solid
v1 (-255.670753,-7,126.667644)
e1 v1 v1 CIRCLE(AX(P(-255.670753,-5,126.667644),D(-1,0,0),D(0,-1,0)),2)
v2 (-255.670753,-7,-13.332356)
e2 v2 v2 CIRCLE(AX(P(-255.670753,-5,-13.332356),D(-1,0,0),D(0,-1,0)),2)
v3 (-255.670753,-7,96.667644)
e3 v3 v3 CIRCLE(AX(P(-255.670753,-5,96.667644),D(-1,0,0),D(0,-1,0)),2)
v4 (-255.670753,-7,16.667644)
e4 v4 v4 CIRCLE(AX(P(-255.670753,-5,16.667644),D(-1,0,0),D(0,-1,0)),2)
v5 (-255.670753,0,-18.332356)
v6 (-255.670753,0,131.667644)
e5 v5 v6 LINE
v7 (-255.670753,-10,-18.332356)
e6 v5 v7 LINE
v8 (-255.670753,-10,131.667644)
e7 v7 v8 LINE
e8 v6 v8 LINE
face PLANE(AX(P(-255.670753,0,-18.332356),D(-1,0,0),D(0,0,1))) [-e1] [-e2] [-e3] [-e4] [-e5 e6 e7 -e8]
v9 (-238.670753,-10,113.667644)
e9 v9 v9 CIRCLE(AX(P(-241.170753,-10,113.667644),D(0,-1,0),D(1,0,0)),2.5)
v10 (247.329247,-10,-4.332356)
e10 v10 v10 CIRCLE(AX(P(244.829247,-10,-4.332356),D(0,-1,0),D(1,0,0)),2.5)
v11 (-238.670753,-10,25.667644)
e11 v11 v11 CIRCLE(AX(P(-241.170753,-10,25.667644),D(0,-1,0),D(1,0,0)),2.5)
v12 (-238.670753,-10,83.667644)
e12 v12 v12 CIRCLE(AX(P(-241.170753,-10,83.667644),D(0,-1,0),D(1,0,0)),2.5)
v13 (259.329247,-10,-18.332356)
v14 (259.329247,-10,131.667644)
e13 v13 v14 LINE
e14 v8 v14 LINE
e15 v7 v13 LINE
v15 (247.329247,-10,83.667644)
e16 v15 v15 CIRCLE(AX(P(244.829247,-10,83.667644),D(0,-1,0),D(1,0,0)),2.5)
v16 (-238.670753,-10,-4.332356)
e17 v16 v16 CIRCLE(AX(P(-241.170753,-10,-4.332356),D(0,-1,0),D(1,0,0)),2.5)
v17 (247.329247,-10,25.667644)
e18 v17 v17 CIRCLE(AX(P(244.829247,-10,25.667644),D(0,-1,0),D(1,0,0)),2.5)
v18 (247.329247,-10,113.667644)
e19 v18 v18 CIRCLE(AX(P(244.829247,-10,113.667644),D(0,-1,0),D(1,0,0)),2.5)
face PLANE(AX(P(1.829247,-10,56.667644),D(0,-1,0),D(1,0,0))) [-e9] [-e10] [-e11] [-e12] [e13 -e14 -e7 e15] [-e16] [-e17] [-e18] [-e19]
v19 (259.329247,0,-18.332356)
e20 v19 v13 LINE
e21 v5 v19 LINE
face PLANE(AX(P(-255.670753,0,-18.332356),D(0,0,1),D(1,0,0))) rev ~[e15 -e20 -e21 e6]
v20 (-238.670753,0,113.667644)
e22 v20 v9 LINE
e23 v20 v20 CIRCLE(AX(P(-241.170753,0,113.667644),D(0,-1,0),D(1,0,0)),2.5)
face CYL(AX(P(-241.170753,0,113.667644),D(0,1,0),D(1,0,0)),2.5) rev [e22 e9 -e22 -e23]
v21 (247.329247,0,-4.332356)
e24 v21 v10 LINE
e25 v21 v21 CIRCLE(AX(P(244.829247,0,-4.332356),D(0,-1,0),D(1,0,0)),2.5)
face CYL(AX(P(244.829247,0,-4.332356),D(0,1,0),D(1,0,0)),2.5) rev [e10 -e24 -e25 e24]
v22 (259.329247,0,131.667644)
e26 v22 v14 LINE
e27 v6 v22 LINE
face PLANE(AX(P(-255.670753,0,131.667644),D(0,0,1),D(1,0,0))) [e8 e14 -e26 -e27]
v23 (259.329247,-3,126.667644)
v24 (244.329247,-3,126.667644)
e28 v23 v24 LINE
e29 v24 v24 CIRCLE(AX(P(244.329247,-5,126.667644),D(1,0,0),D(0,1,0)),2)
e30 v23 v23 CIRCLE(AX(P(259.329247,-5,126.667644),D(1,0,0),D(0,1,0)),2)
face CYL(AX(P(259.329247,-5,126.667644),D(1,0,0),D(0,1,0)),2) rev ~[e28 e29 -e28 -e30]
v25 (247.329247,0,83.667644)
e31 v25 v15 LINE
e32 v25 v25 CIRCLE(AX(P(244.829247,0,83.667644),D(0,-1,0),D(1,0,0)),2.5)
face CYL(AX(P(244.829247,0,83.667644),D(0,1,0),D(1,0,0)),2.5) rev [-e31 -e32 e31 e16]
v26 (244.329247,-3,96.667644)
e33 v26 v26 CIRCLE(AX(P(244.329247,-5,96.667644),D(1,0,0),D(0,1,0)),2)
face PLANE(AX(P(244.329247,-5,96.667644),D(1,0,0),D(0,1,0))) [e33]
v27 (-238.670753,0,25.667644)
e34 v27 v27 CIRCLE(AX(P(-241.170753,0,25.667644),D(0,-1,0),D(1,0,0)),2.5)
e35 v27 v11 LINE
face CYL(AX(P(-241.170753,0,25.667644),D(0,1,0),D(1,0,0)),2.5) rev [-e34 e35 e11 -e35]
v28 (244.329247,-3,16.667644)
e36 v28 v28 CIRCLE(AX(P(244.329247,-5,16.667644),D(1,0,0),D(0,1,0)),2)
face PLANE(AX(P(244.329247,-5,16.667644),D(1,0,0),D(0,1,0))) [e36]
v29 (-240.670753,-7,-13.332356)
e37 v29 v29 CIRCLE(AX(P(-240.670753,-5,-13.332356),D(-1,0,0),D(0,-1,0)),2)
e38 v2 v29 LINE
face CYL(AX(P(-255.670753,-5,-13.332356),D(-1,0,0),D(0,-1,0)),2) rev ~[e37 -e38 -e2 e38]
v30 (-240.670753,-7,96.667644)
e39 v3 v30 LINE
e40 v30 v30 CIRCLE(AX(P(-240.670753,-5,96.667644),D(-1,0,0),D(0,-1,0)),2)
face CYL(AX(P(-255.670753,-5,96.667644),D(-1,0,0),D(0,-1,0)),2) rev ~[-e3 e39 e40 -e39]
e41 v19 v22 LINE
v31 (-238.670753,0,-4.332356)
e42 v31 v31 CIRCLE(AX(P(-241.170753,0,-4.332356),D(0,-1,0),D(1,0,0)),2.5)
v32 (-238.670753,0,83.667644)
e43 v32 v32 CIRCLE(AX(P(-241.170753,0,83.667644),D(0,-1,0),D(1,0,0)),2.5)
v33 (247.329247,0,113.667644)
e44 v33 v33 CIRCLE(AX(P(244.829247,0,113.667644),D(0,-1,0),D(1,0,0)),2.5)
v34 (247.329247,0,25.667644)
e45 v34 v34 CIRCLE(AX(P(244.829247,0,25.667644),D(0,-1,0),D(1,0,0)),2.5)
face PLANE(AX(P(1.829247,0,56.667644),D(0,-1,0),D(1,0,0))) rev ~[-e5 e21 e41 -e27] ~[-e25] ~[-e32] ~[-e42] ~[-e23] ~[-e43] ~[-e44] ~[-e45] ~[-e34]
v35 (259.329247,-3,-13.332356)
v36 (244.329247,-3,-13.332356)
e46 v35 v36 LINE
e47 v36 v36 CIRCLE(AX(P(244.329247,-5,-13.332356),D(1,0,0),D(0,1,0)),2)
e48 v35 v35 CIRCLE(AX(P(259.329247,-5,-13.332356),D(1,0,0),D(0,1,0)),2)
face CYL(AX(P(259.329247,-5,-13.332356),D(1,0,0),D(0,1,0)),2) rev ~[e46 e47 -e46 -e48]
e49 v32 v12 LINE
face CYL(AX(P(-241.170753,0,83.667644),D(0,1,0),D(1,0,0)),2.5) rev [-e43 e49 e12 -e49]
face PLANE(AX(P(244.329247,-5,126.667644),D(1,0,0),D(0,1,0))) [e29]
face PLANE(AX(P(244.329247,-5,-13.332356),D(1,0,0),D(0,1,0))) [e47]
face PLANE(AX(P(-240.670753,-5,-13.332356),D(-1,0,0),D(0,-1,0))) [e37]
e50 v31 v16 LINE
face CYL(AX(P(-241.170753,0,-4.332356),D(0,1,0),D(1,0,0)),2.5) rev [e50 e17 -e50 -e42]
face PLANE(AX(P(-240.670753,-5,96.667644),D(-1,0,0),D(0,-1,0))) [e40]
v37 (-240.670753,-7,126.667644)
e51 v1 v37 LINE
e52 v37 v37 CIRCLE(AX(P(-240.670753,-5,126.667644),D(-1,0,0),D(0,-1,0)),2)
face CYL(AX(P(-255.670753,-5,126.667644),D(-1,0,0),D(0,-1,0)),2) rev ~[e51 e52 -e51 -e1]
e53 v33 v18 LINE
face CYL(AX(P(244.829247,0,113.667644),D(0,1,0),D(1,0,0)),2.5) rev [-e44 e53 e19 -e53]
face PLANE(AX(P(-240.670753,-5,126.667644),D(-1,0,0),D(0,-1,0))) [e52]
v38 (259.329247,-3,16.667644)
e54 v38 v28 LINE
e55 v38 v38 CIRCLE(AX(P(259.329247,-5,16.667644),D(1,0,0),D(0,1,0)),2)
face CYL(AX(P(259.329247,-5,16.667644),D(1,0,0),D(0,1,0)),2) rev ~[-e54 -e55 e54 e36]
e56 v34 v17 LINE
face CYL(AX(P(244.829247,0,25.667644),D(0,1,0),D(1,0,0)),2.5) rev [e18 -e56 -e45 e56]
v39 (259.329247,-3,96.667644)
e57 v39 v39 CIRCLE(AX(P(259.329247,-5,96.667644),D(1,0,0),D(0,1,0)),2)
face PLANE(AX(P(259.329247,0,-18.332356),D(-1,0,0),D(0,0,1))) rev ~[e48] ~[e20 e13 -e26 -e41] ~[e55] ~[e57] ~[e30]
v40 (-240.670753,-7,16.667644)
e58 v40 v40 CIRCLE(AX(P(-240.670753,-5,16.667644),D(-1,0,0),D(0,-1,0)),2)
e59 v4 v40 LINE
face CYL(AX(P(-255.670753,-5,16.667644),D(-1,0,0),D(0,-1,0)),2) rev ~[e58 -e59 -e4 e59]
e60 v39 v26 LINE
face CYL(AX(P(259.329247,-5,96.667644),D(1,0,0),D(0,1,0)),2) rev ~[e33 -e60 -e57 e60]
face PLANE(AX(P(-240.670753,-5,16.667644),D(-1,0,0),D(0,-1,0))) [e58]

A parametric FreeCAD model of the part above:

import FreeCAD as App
import Part
import Sketcher
Q = App.Units.Quantity

doc = App.newDocument("Part")
body = doc.addObject("PartDesign::Body", "Body")

# Sketch on XZ plane
sketch1 = doc.addObject("Sketcher::SketchObject", "Sketch")
body.addObject(sketch1)
sketch1.AttachmentSupport = (doc.XZ_Plane, [""])
sketch1.MapMode = "FlatFace"
sketch1.addGeometry(Part.LineSegment(App.Vector(-255.7, 131.7, 0), App.Vector(-255.7, -18.3, 0)), False)
sketch1.addGeometry(Part.LineSegment(App.Vector(-255.7, -18.3, 0), App.Vector(259.3, -18.3, 0)), False)
sketch1.addGeometry(Part.LineSegment(App.Vector(259.3, -18.3, 0), App.Vector(259.3, 131.7, 0)), False)
sketch1.addGeometry(Part.LineSegment(App.Vector(259.3, 131.7, 0), App.Vector(-255.7, 131.7, 0)), False)
sketch1.addGeometry(Part.Circle(App.Vector(-241.2, -4.3, 0), App.Vector(0, 0, 1), 2.5), False)
sketch1.addGeometry(Part.Circle(App.Vector(-241.2, 25.7, 0), App.Vector(0, 0, 1), 2.5), False)
sketch1.addGeometry(Part.Circle(App.Vector(244.8, -4.3, 0), App.Vector(0, 0, 1), 2.5), False)
sketch1.addGeometry(Part.Circle(App.Vector(244.8, 25.7, 0), App.Vector(0, 0, 1), 2.5), False)
sketch1.addGeometry(Part.Circle(App.Vector(-241.2, 83.7, 0), App.Vector(0, 0, 1), 2.5), False)
sketch1.addGeometry(Part.Circle(App.Vector(-241.2, 113.7, 0), App.Vector(0, 0, 1), 2.5), False)
sketch1.addGeometry(Part.Circle(App.Vector(244.8, 83.7, 0), App.Vector(0, 0, 1), 2.5), False)
sketch1.addGeometry(Part.Circle(App.Vector(244.8, 113.7, 0), App.Vector(0, 0, 1), 2.5), False)
sketch1.addConstraint(Sketcher.Constraint("Coincident", 0, 2, 1, 1))
sketch1.addConstraint(Sketcher.Constraint("Coincident", 1, 2, 2, 1))
sketch1.addConstraint(Sketcher.Constraint("Coincident", 2, 2, 3, 1))
sketch1.addConstraint(Sketcher.Constraint("Coincident", 3, 2, 0, 1))
sketch1.addConstraint(Sketcher.Constraint("Vertical", 0))
sketch1.addConstraint(Sketcher.Constraint("Horizontal", 1))
sketch1.addConstraint(Sketcher.Constraint("Vertical", 2))
sketch1.addConstraint(Sketcher.Constraint("Horizontal", 3))
sketch1.addConstraint(Sketcher.Constraint("Equal", 4, 5))
sketch1.addConstraint(Sketcher.Constraint("Equal", 5, 6))
sketch1.addConstraint(Sketcher.Constraint("Equal", 6, 7))
sketch1.addConstraint(Sketcher.Constraint("Equal", 7, 8))
sketch1.addConstraint(Sketcher.Constraint("Equal", 8, 9))
sketch1.addConstraint(Sketcher.Constraint("Equal", 9, 10))
sketch1.addConstraint(Sketcher.Constraint("Equal", 10, 11))
sketch1.addConstraint(Sketcher.Constraint("Horizontal", 4, 3, 6, 3))
sketch1.addConstraint(Sketcher.Constraint("Horizontal", 5, 3, 7, 3))
sketch1.addConstraint(Sketcher.Constraint("Horizontal", 8, 3, 10, 3))
sketch1.addConstraint(Sketcher.Constraint("Horizontal", 9, 3, 11, 3))
sketch1.addConstraint(Sketcher.Constraint("Vertical", 4, 3, 5, 3))
sketch1.addConstraint(Sketcher.Constraint("Vertical", 6, 3, 7, 3))
sketch1.addConstraint(Sketcher.Constraint("Vertical", 5, 3, 8, 3))
sketch1.addConstraint(Sketcher.Constraint("Vertical", 8, 3, 9, 3))
sketch1.addConstraint(Sketcher.Constraint("Vertical", 7, 3, 10, 3))
sketch1.addConstraint(Sketcher.Constraint("Vertical", 10, 3, 11, 3))
sketch1.addConstraint(Sketcher.Constraint("Diameter", 4, Q("5 mm")))
sketch1.addConstraint(Sketcher.Constraint("DistanceX", 1, 1, 1, 2, Q("515 mm")))
sketch1.addConstraint(Sketcher.Constraint("DistanceY", 0, 2, 0, 1, Q("150 mm")))
sketch1.addConstraint(Sketcher.Constraint("DistanceY", 4, 3, 5, 3, Q("30 mm")))
sketch1.addConstraint(Sketcher.Constraint("DistanceX", 4, 3, 6, 3, Q("486 mm")))
sketch1.addConstraint(Sketcher.Constraint("DistanceY", 5, 3, 8, 3, Q("58 mm")))
sketch1.addConstraint(Sketcher.Constraint("DistanceY", 8, 3, 9, 3, Q("30 mm")))
sketch1.addConstraint(Sketcher.Constraint("DistanceY", 0, 2, 4, 3, Q("14 mm")))
sketch1.addConstraint(Sketcher.Constraint("DistanceX", 0, 2, 4, 3, Q("14.5 mm")))
sketch1.addConstraint(Sketcher.Constraint("DistanceX", 4, 3, -1, 1, Q("241.170753 mm")))
sketch1.addConstraint(Sketcher.Constraint("DistanceY", 4, 3, -1, 1, Q("4.332356 mm")))
pad1 = doc.addObject("PartDesign::Pad", "Pad")
body.addObject(pad1)
pad1.Profile = sketch1
pad1.Length = 10

# Sketch on YZ plane
sketch2 = doc.addObject("Sketcher::SketchObject", "Sketch001")
body.addObject(sketch2)
sketch2.AttachmentSupport = (doc.YZ_Plane, [""])
sketch2.MapMode = "FlatFace"
sketch2.AttachmentOffset = App.Placement(App.Vector(0, 0, -255.670753), App.Rotation())
sketch2.addGeometry(Part.Circle(App.Vector(-5, -13.3, 0), App.Vector(0, 0, 1), 2), False)
sketch2.addGeometry(Part.Circle(App.Vector(-5, 126.7, 0), App.Vector(0, 0, 1), 2), False)
sketch2.addGeometry(Part.Circle(App.Vector(-5, 96.7, 0), App.Vector(0, 0, 1), 2), False)
sketch2.addGeometry(Part.Circle(App.Vector(-5, 16.7, 0), App.Vector(0, 0, 1), 2), False)
sketch2.addConstraint(Sketcher.Constraint("Equal", 0, 1))
sketch2.addConstraint(Sketcher.Constraint("Equal", 1, 2))
sketch2.addConstraint(Sketcher.Constraint("Equal", 2, 3))
sketch2.addConstraint(Sketcher.Constraint("Vertical", 0, 3, 1, 3))
sketch2.addConstraint(Sketcher.Constraint("Vertical", 1, 3, 2, 3))
sketch2.addConstraint(Sketcher.Constraint("Vertical", 2, 3, 3, 3))
sketch2.addConstraint(Sketcher.Constraint("Diameter", 0, Q("4 mm")))
sketch2.addConstraint(Sketcher.Constraint("DistanceX", 0, 3, -1, 1, Q("5 mm")))
sketch2.addConstraint(Sketcher.Constraint("DistanceY", 0, 3, 1, 3, Q("140 mm")))
sketch2.addConstraint(Sketcher.Constraint("DistanceY", 2, 3, 1, 3, Q("30 mm")))
sketch2.addConstraint(Sketcher.Constraint("DistanceY", 0, 3, 3, 3, Q("30 mm")))
sketch2.addConstraint(Sketcher.Constraint("DistanceY", 0, 3, -1, 1, Q("13.332356 mm")))
pocket1 = doc.addObject("PartDesign::Pocket", "Pocket")
body.addObject(pocket1)
pocket1.Profile = sketch2
pocket1.Length = 15
pocket1.Reversed = True

# Sketch on YZ plane
sketch3 = doc.addObject("Sketcher::SketchObject", "Sketch002")
body.addObject(sketch3)
sketch3.AttachmentSupport = (doc.YZ_Plane, [""])
sketch3.MapMode = "FlatFace"
sketch3.AttachmentOffset = App.Placement(App.Vector(0, 0, 259.329247), App.Rotation())
sketch3.addGeometry(Part.Circle(App.Vector(-5, 96.7, 0), App.Vector(0, 0, 1), 2), False)
sketch3.addGeometry(Part.Circle(App.Vector(-5, -13.3, 0), App.Vector(0, 0, 1), 2), False)
sketch3.addGeometry(Part.Circle(App.Vector(-5, 126.7, 0), App.Vector(0, 0, 1), 2), False)
sketch3.addGeometry(Part.Circle(App.Vector(-5, 16.7, 0), App.Vector(0, 0, 1), 2), False)
sketch3.addConstraint(Sketcher.Constraint("Equal", 0, 1))
sketch3.addConstraint(Sketcher.Constraint("Equal", 1, 2))
sketch3.addConstraint(Sketcher.Constraint("Equal", 2, 3))
sketch3.addConstraint(Sketcher.Constraint("Vertical", 0, 3, 1, 3))
sketch3.addConstraint(Sketcher.Constraint("Vertical", 1, 3, 2, 3))
sketch3.addConstraint(Sketcher.Constraint("Vertical", 2, 3, 3, 3))
sketch3.addConstraint(Sketcher.Constraint("Diameter", 0, Q("4 mm")))
sketch3.addConstraint(Sketcher.Constraint("DistanceX", 0, 3, -1, 1, Q("5 mm")))
sketch3.addConstraint(Sketcher.Constraint("DistanceY", 1, 3, 0, 3, Q("110 mm")))
sketch3.addConstraint(Sketcher.Constraint("DistanceY", 0, 3, 2, 3, Q("30 mm")))
sketch3.addConstraint(Sketcher.Constraint("DistanceY", 1, 3, 3, 3, Q("30 mm")))
sketch3.addConstraint(Sketcher.Constraint("DistanceY", -1, 1, 0, 3, Q("96.667644 mm")))
pocket2 = doc.addObject("PartDesign::Pocket", "Pocket001")
body.addObject(pocket2)
pocket2.Profile = sketch3
pocket2.Length = 15

doc.recompute()
